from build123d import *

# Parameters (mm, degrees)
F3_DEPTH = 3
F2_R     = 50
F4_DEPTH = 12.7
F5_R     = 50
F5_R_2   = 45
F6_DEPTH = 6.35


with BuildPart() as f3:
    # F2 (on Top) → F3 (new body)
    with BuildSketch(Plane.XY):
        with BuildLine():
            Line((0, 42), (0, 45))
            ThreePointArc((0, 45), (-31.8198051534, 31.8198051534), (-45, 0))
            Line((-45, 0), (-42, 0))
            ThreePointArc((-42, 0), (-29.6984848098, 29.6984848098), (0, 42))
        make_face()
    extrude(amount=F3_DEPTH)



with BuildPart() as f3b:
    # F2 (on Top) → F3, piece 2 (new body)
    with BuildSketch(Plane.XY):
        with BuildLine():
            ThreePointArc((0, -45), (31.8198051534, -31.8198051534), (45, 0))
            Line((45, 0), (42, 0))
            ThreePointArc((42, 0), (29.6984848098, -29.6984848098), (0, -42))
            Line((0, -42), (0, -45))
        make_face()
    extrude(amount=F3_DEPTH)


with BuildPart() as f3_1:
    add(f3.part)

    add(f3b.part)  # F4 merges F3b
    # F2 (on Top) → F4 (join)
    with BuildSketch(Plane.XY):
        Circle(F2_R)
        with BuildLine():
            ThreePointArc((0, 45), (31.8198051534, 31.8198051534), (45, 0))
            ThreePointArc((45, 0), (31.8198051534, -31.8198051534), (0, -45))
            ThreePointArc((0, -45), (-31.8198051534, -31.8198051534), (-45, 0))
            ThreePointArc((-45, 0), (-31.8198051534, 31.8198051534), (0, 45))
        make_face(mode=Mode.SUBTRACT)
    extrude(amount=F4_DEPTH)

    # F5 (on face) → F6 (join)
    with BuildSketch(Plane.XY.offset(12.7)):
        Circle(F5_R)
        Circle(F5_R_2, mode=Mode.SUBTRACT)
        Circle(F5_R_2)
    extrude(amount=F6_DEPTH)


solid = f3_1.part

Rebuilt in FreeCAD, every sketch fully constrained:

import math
import FreeCAD as App
import Part
import Sketcher

V = App.Vector
Q = App.Units.Quantity

doc = App.newDocument("Part")
body = doc.addObject("PartDesign::Body", "Body")

sketch1 = body.newObject("Sketcher::SketchObject", "Sketch")
sketch1.AttachmentSupport = (doc.getObject("XY_Plane"), [""])
sketch1.MapMode = "FlatFace"
sketch1.addGeometry([
    Part.LineSegment(V(0, 42, 0), V(0, 45, 0)),
    Part.ArcOfCircle(Part.Circle(V(0, 0, 0), V(0, 0, 1), 45), math.radians(90), math.radians(180)),
    Part.LineSegment(V(-45, 0, 0), V(-42, 0, 0)),
    Part.ArcOfCircle(Part.Circle(V(0, 0, 0), V(0, 0, 1), 42), math.radians(90), math.radians(180)),
], False)
sketch1.addConstraint([
    Sketcher.Constraint("Coincident", 0, 2, 1, 1),
    Sketcher.Constraint("Coincident", 1, 2, 2, 1),
    Sketcher.Constraint("Coincident", 2, 2, 3, 2),
    Sketcher.Constraint("Coincident", 3, 1, 0, 1),
    Sketcher.Constraint("Vertical", 0),
    Sketcher.Constraint("Horizontal", 2),
    Sketcher.Constraint("Coincident", 1, 3, -1, 1),
    Sketcher.Constraint("Coincident", 3, 3, -1, 1),
    Sketcher.Constraint("PointOnObject", 0, 2, -2),
    Sketcher.Constraint("PointOnObject", 1, 2, -1),
    Sketcher.Constraint("Radius", 1, Q("45 mm")),
    Sketcher.Constraint("Radius", 3, Q("42 mm")),
])
pad1 = body.newObject("PartDesign::Pad", "Pad")
pad1.Profile = sketch1
pad1.Length = 3
body2 = doc.addObject("PartDesign::Body", "Body001")

sketch2 = body2.newObject("Sketcher::SketchObject", "Sketch001")
sketch2.AttachmentSupport = (doc.getObject("XY_Plane001"), [""])
sketch2.MapMode = "FlatFace"
sketch2.addGeometry([
    Part.ArcOfCircle(Part.Circle(V(0, 0, 0), V(0, 0, 1), 45), math.radians(-90), math.radians(0)),
    Part.LineSegment(V(45, 0, 0), V(42, 0, 0)),
    Part.ArcOfCircle(Part.Circle(V(0, 0, 0), V(0, 0, 1), 42), math.radians(-90), math.radians(0)),
    Part.LineSegment(V(0, -42, 0), V(0, -45, 0)),
], False)
sketch2.addConstraint([
    Sketcher.Constraint("Coincident", 0, 2, 1, 1),
    Sketcher.Constraint("Coincident", 1, 2, 2, 2),
    Sketcher.Constraint("Coincident", 2, 1, 3, 1),
    Sketcher.Constraint("Coincident", 3, 2, 0, 1),
    Sketcher.Constraint("Horizontal", 1),
    Sketcher.Constraint("Vertical", 3),
    Sketcher.Constraint("Coincident", 0, 3, -1, 1),
    Sketcher.Constraint("Coincident", 2, 3, -1, 1),
    Sketcher.Constraint("PointOnObject", 0, 2, -1),
    Sketcher.Constraint("PointOnObject", 2, 1, -2),
    Sketcher.Constraint("Radius", 0, Q("45 mm")),
    Sketcher.Constraint("Radius", 2, Q("42 mm")),
])
pad2 = body2.newObject("PartDesign::Pad", "Pad001")
pad2.Profile = sketch2
pad2.Length = 3
body.AllowCompound = True
doc.recompute()

boolean = body.newObject("PartDesign::Boolean", "Boolean")
boolean.Type = "Fuse"
boolean.addObjects([body2])

sketch3 = body.newObject("Sketcher::SketchObject", "Sketch002")
sketch3.AttachmentSupport = (doc.getObject("XY_Plane"), [""])
sketch3.MapMode = "FlatFace"
sketch3.addGeometry([
    Part.Circle(V(0, 0, 0), V(0, 0, 1), 50),
    Part.Circle(V(0, 0, 0), V(0, 0, 1), 45),
], False)
sketch3.addConstraint([
    Sketcher.Constraint("Coincident", 0, 3, -1, 1),
    Sketcher.Constraint("Coincident", 1, 3, -1, 1),
    Sketcher.Constraint("Diameter", 0, Q("100 mm")),
    Sketcher.Constraint("Diameter", 1, Q("90 mm")),
])
pad3 = body.newObject("PartDesign::Pad", "Pad002")
pad3.Profile = sketch3
pad3.Length = 12.7

sketch4 = body.newObject("Sketcher::SketchObject", "Sketch003")
sketch4.AttachmentSupport = (doc.getObject("XY_Plane"), [""])
sketch4.MapMode = "FlatFace"
sketch4.AttachmentOffset = App.Placement(V(0, 0, 12.7), App.Rotation())
sketch4.addGeometry(Part.Circle(V(0, 0, 0), V(0, 0, 1), 50), False)
sketch4.addConstraint([
    Sketcher.Constraint("Coincident", 0, 3, -1, 1),
    Sketcher.Constraint("Diameter", 0, Q("100 mm")),
])
pad4 = body.newObject("PartDesign::Pad", "Pad003")
pad4.Profile = sketch4
pad4.Length = 6.35

doc.recompute()
